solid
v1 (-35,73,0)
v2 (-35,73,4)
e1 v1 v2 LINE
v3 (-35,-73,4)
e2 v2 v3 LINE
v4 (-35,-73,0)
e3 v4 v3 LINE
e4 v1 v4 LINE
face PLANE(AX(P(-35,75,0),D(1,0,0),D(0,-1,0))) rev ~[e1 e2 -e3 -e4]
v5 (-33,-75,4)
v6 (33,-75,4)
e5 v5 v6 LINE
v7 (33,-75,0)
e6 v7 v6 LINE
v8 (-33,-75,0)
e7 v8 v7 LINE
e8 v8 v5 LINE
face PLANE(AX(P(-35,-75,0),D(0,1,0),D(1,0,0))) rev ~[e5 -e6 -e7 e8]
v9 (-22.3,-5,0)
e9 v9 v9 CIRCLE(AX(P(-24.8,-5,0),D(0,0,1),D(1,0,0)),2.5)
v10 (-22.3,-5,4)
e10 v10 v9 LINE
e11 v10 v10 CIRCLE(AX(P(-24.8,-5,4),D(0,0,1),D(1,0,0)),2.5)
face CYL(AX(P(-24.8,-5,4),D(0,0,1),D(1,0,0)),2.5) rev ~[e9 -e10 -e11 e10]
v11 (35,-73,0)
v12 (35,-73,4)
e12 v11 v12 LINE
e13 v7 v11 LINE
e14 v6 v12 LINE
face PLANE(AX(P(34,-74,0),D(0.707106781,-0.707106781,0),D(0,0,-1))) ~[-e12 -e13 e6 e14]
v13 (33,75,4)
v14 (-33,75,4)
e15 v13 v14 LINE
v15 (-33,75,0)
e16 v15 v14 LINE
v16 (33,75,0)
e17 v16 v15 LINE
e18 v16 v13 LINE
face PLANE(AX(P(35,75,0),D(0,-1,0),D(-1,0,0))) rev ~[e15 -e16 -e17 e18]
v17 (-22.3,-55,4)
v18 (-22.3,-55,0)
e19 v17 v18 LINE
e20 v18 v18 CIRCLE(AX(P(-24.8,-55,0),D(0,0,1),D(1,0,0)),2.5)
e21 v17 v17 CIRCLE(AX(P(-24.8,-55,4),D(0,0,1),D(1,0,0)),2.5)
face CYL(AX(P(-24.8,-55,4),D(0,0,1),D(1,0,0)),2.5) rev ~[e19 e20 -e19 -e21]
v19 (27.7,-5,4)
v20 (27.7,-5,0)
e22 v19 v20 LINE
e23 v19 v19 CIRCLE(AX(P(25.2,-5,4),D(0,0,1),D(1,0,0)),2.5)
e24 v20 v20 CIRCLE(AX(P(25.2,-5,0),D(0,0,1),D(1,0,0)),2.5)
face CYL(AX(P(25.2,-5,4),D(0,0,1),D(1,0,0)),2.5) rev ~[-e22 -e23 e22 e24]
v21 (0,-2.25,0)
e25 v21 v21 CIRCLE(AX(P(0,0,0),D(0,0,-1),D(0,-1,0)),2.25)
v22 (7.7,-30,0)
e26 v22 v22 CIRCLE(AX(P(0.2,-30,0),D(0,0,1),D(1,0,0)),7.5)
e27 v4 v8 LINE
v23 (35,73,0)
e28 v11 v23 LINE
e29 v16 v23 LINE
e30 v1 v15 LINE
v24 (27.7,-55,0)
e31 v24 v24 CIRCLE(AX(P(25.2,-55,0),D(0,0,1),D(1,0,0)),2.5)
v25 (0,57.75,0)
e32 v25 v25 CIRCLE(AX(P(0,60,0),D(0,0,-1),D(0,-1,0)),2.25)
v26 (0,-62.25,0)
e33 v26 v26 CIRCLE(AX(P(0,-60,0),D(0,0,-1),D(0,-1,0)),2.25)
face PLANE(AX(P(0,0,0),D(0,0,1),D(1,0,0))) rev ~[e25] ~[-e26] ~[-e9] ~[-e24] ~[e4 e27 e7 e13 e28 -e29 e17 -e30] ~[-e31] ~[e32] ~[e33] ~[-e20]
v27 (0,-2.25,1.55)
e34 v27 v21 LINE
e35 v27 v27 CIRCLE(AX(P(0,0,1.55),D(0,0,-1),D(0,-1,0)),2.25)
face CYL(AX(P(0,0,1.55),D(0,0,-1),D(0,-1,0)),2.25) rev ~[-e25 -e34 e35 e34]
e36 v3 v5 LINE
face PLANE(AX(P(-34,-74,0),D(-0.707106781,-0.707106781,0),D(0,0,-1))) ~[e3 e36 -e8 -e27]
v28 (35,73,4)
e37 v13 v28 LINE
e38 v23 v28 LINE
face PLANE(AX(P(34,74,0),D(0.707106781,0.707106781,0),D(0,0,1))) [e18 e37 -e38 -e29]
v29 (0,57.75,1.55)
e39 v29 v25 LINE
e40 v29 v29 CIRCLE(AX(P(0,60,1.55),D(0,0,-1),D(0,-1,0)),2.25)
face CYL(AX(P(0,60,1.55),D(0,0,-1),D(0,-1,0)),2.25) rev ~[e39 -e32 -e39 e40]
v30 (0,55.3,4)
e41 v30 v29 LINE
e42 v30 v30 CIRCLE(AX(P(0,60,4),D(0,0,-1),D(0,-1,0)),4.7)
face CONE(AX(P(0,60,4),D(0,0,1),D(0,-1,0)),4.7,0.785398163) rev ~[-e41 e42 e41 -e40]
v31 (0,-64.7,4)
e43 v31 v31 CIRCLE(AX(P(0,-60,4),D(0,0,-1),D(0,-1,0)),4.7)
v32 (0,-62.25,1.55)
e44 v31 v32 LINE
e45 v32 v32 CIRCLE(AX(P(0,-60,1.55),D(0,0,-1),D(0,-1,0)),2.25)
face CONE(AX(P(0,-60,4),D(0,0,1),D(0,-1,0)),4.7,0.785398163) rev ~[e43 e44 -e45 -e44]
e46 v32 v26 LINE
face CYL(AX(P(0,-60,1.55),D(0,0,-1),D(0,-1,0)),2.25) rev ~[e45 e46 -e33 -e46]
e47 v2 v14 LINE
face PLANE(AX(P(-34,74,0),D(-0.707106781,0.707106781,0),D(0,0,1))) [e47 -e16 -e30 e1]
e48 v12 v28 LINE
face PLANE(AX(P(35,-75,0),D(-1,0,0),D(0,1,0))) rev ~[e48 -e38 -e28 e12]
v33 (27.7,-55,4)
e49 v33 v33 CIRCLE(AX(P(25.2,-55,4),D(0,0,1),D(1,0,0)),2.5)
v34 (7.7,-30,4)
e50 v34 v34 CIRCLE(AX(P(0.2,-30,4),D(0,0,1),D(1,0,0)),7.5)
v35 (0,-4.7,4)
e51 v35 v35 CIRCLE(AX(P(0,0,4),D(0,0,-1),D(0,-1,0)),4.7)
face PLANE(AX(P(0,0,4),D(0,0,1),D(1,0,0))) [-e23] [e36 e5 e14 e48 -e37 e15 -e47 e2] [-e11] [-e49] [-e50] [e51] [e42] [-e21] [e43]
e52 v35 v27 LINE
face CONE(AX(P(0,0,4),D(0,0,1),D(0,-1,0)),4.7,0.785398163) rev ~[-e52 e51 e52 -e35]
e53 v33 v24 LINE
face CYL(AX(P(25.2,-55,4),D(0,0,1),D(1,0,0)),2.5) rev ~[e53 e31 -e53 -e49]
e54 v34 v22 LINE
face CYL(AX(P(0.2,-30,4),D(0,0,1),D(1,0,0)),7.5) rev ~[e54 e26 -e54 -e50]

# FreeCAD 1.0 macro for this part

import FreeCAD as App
import Part
import Sketcher

V = App.Vector


def edges_at(feature, points):
    """Names of the edges that pass closest to the given points."""
    edges = feature.Shape.Edges
    near = lambda p: min(range(len(edges)), key=lambda i: edges[i].distToShape(Part.Vertex(*p))[0])
    return sorted({f"Edge{near(p) + 1}" for p in points})


def add_polygon(sketch, points):
    """Adds a closed chain of lines whose ends are joined by coincident constraints."""
    first, n = sketch.GeometryCount, len(points)
    for a, b in zip(points, points[1:] + points[:1]):
        sketch.addGeometry(Part.LineSegment(App.Vector(*a, 0), App.Vector(*b, 0)), False)
    for i in range(n):
        sketch.addConstraint(Sketcher.Constraint("Coincident", first + i, 2, first + (i + 1) % n, 1))

doc = App.newDocument("Part")
body = doc.addObject("PartDesign::Body", "Body")

# Sketch on XY plane
sketch1 = body.newObject("Sketcher::SketchObject", "Sketch")
sketch1.AttachmentSupport = (doc.getObject("XY_Plane"), [""])
sketch1.MapMode = "FlatFace"
add_polygon(sketch1, [(-35, 75), (-35, -75), (35, -75), (35, 75)])  # lines 0-3
sketch1.addConstraint(Sketcher.Constraint("Vertical", 0))
sketch1.addConstraint(Sketcher.Constraint("Horizontal", 1))
sketch1.addConstraint(Sketcher.Constraint("Vertical", 2))
sketch1.addConstraint(Sketcher.Constraint("Horizontal", 3))
sketch1.addConstraint(Sketcher.Constraint("Symmetric", 0, 2, 2, 2, -1, 1))
sketch1.addConstraint(Sketcher.Constraint("DistanceX", 1, 1, 1, 2, 70.0))
sketch1.addConstraint(Sketcher.Constraint("DistanceY", 0, 2, 0, 1, 150.0))
pad1 = body.newObject("PartDesign::Pad", "Pad")
pad1.Profile = sketch1
pad1.Length = 4

# Sketch on XY plane
sketch2 = body.newObject("Sketcher::SketchObject", "Sketch001")
sketch2.AttachmentSupport = (doc.getObject("XY_Plane"), [""])
sketch2.MapMode = "FlatFace"
sketch2.AttachmentOffset = App.Placement(V(0, 0, 4), App.Rotation())
sketch2.addGeometry(Part.Circle(V(0, 60, 0), V(0, 0, 1), 2.2), False)
sketch2.addGeometry(Part.Circle(V(0, -60, 0), V(0, 0, 1), 2.2), False)
sketch2.addGeometry(Part.Circle(V(0, 0, 0), V(0, 0, 1), 2.2), False)
sketch2.addConstraint(Sketcher.Constraint("Coincident", 2, 3, -1, 1))
sketch2.addConstraint(Sketcher.Constraint("Equal", 0, 1))
sketch2.addConstraint(Sketcher.Constraint("Equal", 1, 2))
sketch2.addConstraint(Sketcher.Constraint("Symmetric", 0, 3, 1, 3, -1, 1))
sketch2.addConstraint(Sketcher.Constraint("PointOnObject", 0, 3, -2))
sketch2.addConstraint(Sketcher.Constraint("Diameter", 0, 4.5))
sketch2.addConstraint(Sketcher.Constraint("DistanceY", -1, 1, 0, 3, 60.0))
doc.recompute()
hole = body.newObject("PartDesign::Hole", "Hole")
hole.Profile = sketch2
hole.ThreadType = "None"
hole.Diameter = 4.5
hole.DepthType = "ThroughAll"
hole.HoleCutType = "Countersink"
hole.HoleCutDiameter = 9.4
hole.HoleCutCountersinkAngle = 90
doc.recompute()

chamfer = body.newObject("PartDesign::Chamfer", "Chamfer")
chamfer.Base = (hole, edges_at(hole, [
    (35, -75, 2),
    (-35, -75, 2),
    (35, 75, 2),
    (-35, 75, 2),
]))
chamfer.Size = 2

# Sketch on XY plane
sketch3 = body.newObject("Sketcher::SketchObject", "Sketch002")
sketch3.AttachmentSupport = (doc.getObject("XY_Plane"), [""])
sketch3.MapMode = "FlatFace"
sketch3.AttachmentOffset = App.Placement(V(0, 0, 4), App.Rotation())
sketch3.addGeometry(Part.Circle(V(-24.8, -55, 0), V(0, 0, 1), 2.5), False)
sketch3.addGeometry(Part.Circle(V(25.2, -55, 0), V(0, 0, 1), 2.5), False)
sketch3.addGeometry(Part.Circle(V(25.2, -5, 0), V(0, 0, 1), 2.5), False)
sketch3.addGeometry(Part.Circle(V(-24.8, -5, 0), V(0, 0, 1), 2.5), False)
sketch3.addConstraint(Sketcher.Constraint("Equal", 0, 1))
sketch3.addConstraint(Sketcher.Constraint("Equal", 1, 2))
sketch3.addConstraint(Sketcher.Constraint("Equal", 2, 3))
sketch3.addConstraint(Sketcher.Constraint("Horizontal", 0, 3, 1, 3))
sketch3.addConstraint(Sketcher.Constraint("Horizontal", 2, 3, 3, 3))
sketch3.addConstraint(Sketcher.Constraint("Vertical", 1, 3, 2, 3))
sketch3.addConstraint(Sketcher.Constraint("Vertical", 0, 3, 3, 3))
sketch3.addConstraint(Sketcher.Constraint("Diameter", 0, 5.0))
sketch3.addConstraint(Sketcher.Constraint("DistanceY", 2, 3, -1, 1, 5.0))
sketch3.addConstraint(Sketcher.Constraint("DistanceY", 0, 3, -1, 1, 55.0))
sketch3.addConstraint(Sketcher.Constraint("DistanceX", 0, 3, 1, 3, 50.0))
sketch3.addConstraint(Sketcher.Constraint("DistanceX", 0, 3, -1, 1, 24.8))
pocket1 = body.newObject("PartDesign::Pocket", "Pocket")
pocket1.Profile = sketch3
pocket1.Length = 10

# Sketch on XY plane
sketch4 = body.newObject("Sketcher::SketchObject", "Sketch003")
sketch4.AttachmentSupport = (doc.getObject("XY_Plane"), [""])
sketch4.MapMode = "FlatFace"
sketch4.AttachmentOffset = App.Placement(V(0, 0, 4), App.Rotation())
sketch4.addGeometry(Part.Circle(V(0, -30, 0), V(0, 0, 1), 8), False)
sketch4.addConstraint(Sketcher.Constraint("Diameter", 0, 15.0))
sketch4.addConstraint(Sketcher.Constraint("DistanceY", 0, 3, -1, 1, 30.0))
sketch4.addConstraint(Sketcher.Constraint("DistanceX", -1, 1, 0, 3, 0.2))
pocket2 = body.newObject("PartDesign::Pocket", "Pocket001")
pocket2.Profile = sketch4
pocket2.Type = "ThroughAll"

doc.recompute()
